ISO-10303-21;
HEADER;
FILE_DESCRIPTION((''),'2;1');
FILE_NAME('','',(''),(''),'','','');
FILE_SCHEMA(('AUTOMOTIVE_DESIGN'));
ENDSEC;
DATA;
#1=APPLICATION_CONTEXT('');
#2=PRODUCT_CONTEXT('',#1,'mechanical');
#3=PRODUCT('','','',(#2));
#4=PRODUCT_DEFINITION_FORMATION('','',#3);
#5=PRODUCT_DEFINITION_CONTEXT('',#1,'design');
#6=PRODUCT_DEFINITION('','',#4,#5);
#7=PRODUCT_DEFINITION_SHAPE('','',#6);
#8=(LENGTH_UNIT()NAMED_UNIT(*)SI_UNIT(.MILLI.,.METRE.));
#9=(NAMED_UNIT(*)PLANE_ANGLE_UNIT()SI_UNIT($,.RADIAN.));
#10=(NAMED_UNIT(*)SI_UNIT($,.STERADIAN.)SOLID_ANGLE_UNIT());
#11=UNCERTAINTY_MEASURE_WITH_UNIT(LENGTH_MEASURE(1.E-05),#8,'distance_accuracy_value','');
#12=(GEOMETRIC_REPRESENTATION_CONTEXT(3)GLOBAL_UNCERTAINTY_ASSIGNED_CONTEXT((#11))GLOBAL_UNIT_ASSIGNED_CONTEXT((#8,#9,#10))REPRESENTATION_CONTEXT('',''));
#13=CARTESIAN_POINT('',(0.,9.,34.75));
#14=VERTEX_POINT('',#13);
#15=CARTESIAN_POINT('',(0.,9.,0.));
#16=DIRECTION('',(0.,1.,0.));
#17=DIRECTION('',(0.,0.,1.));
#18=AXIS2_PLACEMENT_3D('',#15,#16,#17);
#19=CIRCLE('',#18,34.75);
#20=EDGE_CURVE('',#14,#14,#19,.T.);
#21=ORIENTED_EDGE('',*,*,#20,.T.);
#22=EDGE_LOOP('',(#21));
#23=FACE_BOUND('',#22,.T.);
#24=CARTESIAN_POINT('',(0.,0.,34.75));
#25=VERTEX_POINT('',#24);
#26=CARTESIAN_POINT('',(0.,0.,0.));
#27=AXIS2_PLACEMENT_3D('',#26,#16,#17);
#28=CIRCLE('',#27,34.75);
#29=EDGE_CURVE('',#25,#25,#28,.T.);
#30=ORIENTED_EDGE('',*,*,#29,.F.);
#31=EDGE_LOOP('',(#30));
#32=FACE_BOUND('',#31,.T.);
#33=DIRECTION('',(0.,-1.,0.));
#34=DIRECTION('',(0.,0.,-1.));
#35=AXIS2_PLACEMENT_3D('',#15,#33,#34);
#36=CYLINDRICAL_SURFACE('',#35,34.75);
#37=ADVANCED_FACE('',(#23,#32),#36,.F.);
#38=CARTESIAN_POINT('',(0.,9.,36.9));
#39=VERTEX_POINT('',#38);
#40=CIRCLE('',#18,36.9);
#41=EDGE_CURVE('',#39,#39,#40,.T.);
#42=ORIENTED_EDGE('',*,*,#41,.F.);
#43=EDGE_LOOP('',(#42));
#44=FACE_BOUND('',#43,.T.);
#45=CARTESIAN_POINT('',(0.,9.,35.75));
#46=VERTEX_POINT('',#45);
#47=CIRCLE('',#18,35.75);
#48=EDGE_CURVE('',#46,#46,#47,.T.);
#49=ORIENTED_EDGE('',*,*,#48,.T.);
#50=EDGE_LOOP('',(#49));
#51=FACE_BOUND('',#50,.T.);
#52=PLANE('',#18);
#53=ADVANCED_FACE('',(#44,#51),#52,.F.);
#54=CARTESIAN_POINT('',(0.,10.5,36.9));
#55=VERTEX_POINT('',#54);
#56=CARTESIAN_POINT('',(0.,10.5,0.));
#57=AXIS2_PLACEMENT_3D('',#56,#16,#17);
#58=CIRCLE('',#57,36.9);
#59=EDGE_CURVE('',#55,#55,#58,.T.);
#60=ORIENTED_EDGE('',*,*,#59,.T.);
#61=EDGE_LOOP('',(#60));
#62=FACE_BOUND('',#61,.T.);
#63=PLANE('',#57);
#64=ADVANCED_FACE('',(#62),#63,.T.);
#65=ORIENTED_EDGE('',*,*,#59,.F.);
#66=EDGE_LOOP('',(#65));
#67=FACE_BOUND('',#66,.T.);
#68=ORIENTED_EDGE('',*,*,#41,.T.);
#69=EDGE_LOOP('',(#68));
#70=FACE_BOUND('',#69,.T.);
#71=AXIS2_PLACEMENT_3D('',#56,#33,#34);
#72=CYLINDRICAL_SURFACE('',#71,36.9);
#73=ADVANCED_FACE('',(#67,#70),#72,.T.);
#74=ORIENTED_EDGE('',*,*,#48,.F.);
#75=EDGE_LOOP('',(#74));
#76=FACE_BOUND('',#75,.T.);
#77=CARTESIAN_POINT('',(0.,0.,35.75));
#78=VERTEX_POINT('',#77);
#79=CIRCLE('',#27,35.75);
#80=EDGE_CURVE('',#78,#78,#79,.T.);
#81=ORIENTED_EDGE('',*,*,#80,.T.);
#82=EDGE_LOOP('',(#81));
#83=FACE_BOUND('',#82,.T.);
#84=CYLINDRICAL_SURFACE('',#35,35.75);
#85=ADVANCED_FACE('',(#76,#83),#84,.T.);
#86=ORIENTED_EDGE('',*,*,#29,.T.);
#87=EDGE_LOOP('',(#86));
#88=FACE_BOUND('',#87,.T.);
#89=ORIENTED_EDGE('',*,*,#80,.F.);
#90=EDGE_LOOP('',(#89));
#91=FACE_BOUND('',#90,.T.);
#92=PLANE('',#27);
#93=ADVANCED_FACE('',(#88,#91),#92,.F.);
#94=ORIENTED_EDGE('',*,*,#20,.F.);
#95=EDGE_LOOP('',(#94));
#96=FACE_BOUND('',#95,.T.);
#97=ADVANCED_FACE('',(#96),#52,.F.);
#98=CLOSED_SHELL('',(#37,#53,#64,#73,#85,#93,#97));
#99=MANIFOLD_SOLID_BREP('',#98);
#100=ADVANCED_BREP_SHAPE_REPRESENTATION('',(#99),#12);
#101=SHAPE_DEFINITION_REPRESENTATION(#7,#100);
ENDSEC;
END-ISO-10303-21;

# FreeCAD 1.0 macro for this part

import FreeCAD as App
import Part
import Sketcher

V = App.Vector

doc = App.newDocument("Part")
body = doc.addObject("PartDesign::Body", "Body")

sketch1 = body.newObject("Sketcher::SketchObject", "Sketch")
sketch1.AttachmentSupport = (doc.getObject("XZ_Plane"), [""])
sketch1.MapMode = "FlatFace"
sketch1.addGeometry([
    Part.Circle(V(0, 0, 0), V(0, 0, 1), 36),
    Part.Circle(V(0, 0, 0), V(0, 0, 1), 35),
], False)
sketch1.addConstraint([
    Sketcher.Constraint("Coincident", 0, 3, -1, 1),
    Sketcher.Constraint("Coincident", 1, 3, -1, 1),
    Sketcher.Constraint("Diameter", 0, 71.5),
    Sketcher.Constraint("Diameter", 1, 69.5),
])
pad1 = body.newObject("PartDesign::Pad", "Pad")
pad1.Profile = sketch1
pad1.Length = 9
pad1.Reversed = True

sketch2 = body.newObject("Sketcher::SketchObject", "Sketch001")
sketch2.AttachmentSupport = (doc.getObject("XZ_Plane"), [""])
sketch2.MapMode = "FlatFace"
sketch2.AttachmentOffset = App.Placement(V(0, 0, -9), App.Rotation())
sketch2.addGeometry(Part.Circle(V(0, 0, 0), V(0, 0, 1), 37), False)
sketch2.addConstraint([
    Sketcher.Constraint("Coincident", 0, 3, -1, 1),
    Sketcher.Constraint("Diameter", 0, 73.8),
])
pad2 = body.newObject("PartDesign::Pad", "Pad001")
pad2.Profile = sketch2
pad2.Length = 1.5
pad2.Reversed = True

doc.recompute()
